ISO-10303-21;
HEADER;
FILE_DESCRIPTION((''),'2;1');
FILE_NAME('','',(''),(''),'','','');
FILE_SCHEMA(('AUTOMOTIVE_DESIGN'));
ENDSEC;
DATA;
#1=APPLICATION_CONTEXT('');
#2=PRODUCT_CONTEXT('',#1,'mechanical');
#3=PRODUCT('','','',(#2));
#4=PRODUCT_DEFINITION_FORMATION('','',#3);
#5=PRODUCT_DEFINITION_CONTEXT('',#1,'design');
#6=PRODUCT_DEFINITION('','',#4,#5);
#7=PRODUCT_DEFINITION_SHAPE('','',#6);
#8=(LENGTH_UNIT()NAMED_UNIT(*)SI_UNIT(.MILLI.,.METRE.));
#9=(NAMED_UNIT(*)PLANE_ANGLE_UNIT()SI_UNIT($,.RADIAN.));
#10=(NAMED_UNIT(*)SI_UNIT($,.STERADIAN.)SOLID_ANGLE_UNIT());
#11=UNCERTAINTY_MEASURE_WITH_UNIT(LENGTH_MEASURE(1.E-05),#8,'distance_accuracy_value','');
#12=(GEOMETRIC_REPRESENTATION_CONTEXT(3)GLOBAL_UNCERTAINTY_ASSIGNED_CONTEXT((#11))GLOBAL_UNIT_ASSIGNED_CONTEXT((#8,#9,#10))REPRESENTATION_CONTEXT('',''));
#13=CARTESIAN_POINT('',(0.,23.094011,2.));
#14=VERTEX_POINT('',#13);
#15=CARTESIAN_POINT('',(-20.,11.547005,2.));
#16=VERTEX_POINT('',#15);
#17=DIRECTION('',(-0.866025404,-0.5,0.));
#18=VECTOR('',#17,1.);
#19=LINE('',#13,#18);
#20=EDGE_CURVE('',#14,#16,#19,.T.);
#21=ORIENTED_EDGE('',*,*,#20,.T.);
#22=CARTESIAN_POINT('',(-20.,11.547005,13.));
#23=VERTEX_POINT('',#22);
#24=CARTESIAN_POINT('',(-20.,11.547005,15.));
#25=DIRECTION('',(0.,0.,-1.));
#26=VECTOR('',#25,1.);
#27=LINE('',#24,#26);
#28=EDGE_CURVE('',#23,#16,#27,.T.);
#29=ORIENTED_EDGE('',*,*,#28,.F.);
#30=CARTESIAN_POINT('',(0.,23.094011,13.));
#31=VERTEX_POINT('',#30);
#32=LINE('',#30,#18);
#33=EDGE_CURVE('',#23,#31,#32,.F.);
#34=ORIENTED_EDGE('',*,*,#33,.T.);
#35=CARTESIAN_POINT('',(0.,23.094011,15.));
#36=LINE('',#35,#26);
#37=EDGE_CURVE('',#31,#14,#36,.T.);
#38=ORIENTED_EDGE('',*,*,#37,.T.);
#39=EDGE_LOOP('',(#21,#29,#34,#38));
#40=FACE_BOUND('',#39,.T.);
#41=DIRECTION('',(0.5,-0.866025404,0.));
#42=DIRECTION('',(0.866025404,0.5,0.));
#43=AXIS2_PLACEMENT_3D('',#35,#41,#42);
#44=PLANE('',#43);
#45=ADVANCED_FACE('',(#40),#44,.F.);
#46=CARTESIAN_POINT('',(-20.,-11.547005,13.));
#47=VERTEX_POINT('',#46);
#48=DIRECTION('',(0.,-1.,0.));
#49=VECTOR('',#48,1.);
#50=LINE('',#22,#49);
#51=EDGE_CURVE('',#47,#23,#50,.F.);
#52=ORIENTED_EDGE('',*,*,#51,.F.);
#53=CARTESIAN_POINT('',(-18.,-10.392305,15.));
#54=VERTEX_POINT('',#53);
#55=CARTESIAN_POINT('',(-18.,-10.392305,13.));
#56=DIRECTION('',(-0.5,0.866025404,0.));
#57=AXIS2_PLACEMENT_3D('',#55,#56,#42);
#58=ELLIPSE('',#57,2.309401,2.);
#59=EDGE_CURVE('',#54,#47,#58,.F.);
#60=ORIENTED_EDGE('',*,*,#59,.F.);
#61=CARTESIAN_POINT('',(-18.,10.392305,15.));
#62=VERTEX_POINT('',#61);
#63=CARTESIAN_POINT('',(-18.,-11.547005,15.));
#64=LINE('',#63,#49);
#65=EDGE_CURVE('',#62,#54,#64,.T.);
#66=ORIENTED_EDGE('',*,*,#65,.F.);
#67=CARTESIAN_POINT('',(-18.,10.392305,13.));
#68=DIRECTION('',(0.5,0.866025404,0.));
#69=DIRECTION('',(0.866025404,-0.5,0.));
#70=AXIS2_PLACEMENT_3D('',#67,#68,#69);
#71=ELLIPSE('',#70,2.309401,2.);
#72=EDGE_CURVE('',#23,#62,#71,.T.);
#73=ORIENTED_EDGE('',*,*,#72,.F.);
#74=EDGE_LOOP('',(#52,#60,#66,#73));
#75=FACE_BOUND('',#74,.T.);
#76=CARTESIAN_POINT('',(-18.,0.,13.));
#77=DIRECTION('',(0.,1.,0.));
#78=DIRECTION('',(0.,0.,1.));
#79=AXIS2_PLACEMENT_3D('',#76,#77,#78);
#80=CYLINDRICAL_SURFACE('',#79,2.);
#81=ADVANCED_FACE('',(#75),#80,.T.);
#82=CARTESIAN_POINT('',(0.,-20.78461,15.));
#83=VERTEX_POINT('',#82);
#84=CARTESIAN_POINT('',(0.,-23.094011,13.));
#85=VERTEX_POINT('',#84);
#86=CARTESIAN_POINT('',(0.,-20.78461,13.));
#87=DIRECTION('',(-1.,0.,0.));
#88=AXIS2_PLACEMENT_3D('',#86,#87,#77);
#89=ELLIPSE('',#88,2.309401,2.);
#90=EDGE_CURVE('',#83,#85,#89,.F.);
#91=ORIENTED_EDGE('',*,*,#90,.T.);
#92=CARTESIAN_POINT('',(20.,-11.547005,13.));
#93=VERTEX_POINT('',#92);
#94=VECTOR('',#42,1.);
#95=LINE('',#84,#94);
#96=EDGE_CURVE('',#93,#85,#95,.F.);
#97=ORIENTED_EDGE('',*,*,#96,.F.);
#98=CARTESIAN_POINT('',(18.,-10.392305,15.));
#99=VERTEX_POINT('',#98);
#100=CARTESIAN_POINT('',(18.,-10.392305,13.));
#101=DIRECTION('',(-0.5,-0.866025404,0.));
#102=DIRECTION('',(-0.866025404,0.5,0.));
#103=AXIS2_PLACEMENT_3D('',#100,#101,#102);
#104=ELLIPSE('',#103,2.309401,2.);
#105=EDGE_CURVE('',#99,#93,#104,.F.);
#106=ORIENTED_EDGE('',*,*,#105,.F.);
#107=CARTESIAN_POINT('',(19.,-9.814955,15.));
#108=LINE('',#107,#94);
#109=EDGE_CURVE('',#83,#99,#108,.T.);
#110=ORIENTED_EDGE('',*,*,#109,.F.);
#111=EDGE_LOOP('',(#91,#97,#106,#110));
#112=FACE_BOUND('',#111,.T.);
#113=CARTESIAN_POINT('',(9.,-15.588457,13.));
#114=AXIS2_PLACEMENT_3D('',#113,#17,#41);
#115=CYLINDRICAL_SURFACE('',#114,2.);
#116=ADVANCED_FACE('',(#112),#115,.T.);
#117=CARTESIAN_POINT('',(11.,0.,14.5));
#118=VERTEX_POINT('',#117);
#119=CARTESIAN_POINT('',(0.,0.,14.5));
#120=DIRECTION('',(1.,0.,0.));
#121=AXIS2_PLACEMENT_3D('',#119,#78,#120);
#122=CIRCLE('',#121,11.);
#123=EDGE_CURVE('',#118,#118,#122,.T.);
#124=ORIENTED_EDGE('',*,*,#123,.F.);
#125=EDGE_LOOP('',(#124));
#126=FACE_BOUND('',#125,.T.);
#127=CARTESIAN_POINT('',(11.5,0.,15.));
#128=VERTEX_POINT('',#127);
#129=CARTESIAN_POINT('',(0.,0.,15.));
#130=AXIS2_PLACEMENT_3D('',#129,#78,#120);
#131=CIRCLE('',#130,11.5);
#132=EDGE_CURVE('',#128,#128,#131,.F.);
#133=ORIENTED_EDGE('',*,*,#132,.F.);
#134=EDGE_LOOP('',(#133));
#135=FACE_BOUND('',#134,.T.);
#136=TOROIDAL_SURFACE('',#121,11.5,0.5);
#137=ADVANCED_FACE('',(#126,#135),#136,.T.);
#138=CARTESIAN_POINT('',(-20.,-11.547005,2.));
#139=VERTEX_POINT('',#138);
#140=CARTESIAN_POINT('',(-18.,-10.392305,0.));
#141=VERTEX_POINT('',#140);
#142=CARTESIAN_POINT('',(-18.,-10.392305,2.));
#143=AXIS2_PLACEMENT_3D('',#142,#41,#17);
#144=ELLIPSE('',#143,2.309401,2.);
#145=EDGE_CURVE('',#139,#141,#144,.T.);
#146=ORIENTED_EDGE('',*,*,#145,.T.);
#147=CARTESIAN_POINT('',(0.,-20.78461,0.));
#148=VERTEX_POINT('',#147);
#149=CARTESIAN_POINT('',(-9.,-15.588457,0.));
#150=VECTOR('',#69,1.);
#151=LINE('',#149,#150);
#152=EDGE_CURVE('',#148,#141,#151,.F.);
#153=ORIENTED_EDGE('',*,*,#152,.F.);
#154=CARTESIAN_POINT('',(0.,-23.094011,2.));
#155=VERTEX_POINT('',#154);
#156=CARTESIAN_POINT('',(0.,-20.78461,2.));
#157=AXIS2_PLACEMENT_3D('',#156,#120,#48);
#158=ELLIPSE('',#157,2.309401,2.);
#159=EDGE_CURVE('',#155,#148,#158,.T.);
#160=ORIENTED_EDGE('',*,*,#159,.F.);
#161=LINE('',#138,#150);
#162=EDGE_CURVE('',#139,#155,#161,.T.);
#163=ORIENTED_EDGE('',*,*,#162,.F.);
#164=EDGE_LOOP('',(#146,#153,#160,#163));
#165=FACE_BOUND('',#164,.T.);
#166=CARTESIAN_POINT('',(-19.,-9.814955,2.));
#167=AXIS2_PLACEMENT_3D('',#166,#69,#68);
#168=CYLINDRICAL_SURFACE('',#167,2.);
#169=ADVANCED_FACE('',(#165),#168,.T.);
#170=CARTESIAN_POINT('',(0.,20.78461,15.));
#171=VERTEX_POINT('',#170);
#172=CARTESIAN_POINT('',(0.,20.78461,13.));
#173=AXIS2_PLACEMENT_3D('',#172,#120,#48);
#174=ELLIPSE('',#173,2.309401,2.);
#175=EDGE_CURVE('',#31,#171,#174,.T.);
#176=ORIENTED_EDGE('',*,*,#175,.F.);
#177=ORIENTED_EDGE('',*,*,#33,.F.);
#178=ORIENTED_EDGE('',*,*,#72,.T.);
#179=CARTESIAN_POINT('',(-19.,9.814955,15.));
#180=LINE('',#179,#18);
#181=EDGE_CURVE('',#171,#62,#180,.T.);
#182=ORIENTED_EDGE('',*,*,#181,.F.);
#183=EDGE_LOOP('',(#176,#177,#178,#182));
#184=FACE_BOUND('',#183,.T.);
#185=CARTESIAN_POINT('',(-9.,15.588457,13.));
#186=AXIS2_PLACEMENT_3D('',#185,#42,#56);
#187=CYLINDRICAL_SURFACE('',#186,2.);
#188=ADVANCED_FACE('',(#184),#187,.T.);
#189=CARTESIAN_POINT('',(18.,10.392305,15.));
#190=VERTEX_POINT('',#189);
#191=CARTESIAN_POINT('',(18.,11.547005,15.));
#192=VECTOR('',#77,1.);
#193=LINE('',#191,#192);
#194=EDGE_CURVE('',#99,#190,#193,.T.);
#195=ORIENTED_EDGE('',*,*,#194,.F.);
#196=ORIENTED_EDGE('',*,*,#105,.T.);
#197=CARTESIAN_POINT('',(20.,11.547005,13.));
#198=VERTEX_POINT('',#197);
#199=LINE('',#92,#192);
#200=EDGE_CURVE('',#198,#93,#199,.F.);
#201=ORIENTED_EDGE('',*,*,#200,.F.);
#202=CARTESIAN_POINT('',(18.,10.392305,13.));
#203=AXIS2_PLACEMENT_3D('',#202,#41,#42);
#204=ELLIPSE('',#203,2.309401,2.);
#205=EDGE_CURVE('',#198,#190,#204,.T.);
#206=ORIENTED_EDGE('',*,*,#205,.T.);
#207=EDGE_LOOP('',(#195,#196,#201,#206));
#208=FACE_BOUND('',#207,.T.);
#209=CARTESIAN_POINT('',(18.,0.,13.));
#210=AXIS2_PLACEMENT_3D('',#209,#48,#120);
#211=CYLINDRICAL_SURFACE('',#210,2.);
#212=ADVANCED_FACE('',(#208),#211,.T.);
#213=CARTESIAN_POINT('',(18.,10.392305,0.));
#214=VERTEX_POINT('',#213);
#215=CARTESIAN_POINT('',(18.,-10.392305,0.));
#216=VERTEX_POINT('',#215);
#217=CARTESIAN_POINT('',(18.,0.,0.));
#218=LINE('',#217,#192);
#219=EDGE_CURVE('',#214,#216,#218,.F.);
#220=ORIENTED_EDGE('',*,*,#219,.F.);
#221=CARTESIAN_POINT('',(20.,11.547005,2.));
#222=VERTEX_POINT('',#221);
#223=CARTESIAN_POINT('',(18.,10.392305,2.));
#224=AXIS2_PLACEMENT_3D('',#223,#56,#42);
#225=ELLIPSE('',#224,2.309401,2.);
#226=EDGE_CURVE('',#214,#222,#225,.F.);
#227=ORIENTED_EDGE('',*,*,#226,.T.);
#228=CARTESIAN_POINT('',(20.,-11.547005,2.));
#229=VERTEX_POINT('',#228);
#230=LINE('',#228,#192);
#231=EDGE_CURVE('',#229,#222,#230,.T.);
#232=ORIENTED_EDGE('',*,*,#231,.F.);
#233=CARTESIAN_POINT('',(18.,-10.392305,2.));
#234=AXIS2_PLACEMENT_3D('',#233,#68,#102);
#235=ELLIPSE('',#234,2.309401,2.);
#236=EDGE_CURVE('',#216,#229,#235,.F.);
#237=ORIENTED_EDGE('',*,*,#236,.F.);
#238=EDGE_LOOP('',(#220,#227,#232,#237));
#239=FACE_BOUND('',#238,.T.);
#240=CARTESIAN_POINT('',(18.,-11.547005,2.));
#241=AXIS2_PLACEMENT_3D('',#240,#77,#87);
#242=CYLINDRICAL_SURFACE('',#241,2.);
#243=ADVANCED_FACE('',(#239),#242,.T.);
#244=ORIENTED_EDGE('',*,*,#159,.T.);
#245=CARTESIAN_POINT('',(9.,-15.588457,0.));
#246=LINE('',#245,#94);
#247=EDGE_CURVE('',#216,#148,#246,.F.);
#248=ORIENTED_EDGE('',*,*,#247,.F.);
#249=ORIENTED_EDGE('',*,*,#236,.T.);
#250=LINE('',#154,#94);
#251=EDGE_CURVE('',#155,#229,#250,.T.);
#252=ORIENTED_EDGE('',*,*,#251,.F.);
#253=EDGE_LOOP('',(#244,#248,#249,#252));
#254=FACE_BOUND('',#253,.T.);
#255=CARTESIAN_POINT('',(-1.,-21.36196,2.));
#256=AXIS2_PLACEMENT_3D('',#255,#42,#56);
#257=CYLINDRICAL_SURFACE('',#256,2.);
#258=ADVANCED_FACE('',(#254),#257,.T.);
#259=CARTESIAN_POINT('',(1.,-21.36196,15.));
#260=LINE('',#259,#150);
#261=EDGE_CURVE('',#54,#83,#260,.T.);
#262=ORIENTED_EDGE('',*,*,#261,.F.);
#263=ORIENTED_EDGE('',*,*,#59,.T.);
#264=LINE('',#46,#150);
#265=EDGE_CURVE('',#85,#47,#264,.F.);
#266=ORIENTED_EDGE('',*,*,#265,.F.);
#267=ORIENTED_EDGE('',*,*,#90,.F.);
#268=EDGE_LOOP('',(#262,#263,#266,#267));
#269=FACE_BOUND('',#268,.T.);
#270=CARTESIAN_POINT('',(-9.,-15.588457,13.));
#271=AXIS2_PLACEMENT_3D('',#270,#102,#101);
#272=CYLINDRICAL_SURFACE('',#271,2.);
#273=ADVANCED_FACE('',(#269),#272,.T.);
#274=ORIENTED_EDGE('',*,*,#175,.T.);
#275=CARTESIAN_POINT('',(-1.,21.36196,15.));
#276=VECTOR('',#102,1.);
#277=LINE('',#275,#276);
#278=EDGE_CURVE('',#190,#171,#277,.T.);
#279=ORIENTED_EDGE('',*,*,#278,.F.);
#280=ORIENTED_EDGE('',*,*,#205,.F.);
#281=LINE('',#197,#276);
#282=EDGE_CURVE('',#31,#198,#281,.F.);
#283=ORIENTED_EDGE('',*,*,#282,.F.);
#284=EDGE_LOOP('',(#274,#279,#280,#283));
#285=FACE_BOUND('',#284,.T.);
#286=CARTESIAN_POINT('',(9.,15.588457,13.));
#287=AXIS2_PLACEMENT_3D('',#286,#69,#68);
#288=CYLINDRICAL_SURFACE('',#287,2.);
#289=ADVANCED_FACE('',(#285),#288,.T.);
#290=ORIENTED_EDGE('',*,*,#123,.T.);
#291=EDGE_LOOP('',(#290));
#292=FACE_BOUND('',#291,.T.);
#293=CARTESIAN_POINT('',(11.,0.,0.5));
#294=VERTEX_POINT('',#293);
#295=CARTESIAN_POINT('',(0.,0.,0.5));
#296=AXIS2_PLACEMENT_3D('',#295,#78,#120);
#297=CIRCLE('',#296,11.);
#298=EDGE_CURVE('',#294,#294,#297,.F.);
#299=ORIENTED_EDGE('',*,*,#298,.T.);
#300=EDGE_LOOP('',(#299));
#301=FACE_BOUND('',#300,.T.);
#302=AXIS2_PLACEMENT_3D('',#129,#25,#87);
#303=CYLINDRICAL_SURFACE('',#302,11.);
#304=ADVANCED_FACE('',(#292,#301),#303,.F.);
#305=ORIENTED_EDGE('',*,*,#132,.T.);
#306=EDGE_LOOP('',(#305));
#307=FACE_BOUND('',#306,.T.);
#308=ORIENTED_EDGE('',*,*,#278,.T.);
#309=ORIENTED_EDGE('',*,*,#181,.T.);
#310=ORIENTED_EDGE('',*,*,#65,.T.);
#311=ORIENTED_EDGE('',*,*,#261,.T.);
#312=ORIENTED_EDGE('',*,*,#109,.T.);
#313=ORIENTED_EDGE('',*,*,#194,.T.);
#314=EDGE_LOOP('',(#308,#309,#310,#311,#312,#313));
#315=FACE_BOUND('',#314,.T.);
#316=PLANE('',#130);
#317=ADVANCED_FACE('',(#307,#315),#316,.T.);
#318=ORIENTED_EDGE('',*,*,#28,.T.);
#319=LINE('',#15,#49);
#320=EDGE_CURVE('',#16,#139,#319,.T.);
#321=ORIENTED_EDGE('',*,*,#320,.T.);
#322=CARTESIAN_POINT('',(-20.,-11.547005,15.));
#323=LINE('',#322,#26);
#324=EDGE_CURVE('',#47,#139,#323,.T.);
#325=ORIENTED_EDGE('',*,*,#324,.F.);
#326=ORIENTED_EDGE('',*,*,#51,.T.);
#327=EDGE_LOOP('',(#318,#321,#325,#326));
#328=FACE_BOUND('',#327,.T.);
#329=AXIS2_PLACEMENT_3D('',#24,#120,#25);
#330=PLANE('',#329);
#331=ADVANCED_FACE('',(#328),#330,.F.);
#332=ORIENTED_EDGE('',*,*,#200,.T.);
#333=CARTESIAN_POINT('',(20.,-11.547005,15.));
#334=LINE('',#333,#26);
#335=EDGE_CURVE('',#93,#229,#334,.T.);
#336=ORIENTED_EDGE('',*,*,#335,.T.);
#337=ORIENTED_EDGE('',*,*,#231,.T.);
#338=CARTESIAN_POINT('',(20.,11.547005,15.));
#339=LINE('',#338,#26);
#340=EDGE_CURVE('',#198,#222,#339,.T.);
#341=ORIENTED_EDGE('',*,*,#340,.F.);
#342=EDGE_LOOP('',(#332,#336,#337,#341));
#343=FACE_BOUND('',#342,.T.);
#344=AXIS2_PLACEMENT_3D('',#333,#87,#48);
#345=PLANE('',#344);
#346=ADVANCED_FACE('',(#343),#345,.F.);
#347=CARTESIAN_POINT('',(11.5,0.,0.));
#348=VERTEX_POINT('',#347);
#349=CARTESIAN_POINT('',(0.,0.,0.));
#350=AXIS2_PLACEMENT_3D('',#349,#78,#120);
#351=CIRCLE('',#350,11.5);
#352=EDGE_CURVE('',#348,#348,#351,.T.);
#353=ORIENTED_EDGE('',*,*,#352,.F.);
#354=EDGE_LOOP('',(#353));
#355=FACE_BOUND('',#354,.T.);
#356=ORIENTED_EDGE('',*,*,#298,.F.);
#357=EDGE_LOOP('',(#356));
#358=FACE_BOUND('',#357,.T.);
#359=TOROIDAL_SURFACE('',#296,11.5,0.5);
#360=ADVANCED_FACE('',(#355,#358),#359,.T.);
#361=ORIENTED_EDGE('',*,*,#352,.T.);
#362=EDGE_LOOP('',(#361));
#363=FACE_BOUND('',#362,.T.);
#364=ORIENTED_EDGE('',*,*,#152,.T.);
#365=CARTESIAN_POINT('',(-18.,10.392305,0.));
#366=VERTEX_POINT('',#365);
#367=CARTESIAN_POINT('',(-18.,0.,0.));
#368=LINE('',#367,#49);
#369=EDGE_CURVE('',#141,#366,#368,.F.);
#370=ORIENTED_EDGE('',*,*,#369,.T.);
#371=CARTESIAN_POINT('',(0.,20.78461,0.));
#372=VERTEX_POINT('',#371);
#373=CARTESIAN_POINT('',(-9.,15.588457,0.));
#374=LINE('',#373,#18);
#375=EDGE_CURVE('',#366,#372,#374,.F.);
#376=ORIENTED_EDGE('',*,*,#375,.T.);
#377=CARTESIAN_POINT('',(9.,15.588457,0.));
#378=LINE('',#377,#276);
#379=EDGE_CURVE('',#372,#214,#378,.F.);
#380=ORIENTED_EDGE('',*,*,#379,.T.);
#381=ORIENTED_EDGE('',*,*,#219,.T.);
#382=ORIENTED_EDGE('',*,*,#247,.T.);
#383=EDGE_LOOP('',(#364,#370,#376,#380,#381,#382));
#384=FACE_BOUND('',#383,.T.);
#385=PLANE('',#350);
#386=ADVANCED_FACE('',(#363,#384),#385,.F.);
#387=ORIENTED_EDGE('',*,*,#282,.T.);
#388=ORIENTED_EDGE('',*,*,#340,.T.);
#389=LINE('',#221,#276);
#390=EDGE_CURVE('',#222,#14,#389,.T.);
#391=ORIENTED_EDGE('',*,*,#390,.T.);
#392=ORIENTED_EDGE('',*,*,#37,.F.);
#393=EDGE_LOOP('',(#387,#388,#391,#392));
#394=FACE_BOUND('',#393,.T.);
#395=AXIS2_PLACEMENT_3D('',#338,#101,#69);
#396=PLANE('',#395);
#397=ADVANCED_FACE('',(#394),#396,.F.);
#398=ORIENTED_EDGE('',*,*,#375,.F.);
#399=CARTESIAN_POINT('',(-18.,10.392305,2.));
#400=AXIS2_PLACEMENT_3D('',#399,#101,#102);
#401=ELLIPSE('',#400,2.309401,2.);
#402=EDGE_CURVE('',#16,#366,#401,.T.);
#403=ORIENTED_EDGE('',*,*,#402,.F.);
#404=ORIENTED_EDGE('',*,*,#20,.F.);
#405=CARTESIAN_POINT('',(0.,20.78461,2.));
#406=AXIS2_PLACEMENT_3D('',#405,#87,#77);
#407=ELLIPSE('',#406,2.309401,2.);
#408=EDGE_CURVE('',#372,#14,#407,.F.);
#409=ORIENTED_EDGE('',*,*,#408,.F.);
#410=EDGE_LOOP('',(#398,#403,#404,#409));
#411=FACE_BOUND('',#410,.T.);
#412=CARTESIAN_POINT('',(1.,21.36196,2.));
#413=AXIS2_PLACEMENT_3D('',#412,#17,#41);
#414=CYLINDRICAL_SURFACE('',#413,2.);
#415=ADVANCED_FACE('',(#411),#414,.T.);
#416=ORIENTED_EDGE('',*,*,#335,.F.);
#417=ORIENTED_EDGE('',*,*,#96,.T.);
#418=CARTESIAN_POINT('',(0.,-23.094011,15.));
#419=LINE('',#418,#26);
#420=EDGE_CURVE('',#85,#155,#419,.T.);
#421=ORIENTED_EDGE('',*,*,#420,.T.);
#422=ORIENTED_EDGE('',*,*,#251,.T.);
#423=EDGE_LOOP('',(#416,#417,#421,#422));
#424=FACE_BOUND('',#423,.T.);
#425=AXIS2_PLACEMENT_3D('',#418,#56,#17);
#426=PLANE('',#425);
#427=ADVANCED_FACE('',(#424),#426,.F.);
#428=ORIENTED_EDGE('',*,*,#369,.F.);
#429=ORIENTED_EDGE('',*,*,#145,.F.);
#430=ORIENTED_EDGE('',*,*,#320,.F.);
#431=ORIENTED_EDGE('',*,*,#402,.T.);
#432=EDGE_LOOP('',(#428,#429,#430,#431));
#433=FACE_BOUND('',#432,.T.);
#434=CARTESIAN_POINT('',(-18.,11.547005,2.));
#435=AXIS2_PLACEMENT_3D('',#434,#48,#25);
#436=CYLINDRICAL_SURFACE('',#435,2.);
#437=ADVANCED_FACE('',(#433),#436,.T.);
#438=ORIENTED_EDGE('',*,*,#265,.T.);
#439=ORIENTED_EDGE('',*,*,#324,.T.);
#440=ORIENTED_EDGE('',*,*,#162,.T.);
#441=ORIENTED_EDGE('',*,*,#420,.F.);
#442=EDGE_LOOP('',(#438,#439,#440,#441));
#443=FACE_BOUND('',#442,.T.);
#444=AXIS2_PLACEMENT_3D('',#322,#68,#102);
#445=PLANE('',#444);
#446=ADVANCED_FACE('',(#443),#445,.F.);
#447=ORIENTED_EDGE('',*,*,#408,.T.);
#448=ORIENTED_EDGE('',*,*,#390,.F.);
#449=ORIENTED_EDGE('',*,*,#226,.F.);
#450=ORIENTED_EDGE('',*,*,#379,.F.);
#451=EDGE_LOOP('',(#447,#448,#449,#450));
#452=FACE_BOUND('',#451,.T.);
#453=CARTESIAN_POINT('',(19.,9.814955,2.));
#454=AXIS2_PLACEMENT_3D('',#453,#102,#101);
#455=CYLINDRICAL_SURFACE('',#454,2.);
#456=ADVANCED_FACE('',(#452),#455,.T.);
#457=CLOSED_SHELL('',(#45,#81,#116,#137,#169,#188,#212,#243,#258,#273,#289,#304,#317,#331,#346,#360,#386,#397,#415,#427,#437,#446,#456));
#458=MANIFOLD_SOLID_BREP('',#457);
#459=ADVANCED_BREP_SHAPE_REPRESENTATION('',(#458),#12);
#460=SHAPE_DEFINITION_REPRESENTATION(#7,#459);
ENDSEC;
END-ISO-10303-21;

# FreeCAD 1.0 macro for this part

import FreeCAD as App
import Part
import Sketcher
Q = App.Units.Quantity


def edges_at(feature, points):
    """Names of the edges that pass closest to the given points."""
    edges = feature.Shape.Edges
    near = lambda p: min(range(len(edges)), key=lambda i: edges[i].distToShape(Part.Vertex(*p))[0])
    return sorted({f"Edge{near(p) + 1}" for p in points})

doc = App.newDocument("Part")
body = doc.addObject("PartDesign::Body", "Body")

# Sketch on XY plane
sketch1 = body.newObject("Sketcher::SketchObject", "Sketch")
sketch1.AttachmentSupport = (doc.getObject("XY_Plane"), [""])
sketch1.MapMode = "FlatFace"
sketch1.addGeometry(Part.LineSegment(App.Vector(0, -23, 0), App.Vector(20, -12, 0)), False)
sketch1.addGeometry(Part.LineSegment(App.Vector(20, -12, 0), App.Vector(20, 12, 0)), False)
sketch1.addGeometry(Part.LineSegment(App.Vector(20, 12, 0), App.Vector(0, 23, 0)), False)
sketch1.addGeometry(Part.LineSegment(App.Vector(0, 23, 0), App.Vector(-20, 12, 0)), False)
sketch1.addGeometry(Part.LineSegment(App.Vector(-20, 12, 0), App.Vector(-20, -12, 0)), False)
sketch1.addGeometry(Part.LineSegment(App.Vector(-20, -12, 0), App.Vector(0, -23, 0)), False)
sketch1.addGeometry(Part.Circle(App.Vector(0, 0, 0), App.Vector(0, 0, 1), 11), False)
sketch1.addConstraint(Sketcher.Constraint("Coincident", 0, 2, 1, 1))
sketch1.addConstraint(Sketcher.Constraint("Coincident", 1, 2, 2, 1))
sketch1.addConstraint(Sketcher.Constraint("Coincident", 2, 2, 3, 1))
sketch1.addConstraint(Sketcher.Constraint("Coincident", 3, 2, 4, 1))
sketch1.addConstraint(Sketcher.Constraint("Coincident", 4, 2, 5, 1))
sketch1.addConstraint(Sketcher.Constraint("Coincident", 5, 2, 0, 1))
sketch1.addConstraint(Sketcher.Constraint("Vertical", 1))
sketch1.addConstraint(Sketcher.Constraint("Vertical", 4))
sketch1.addConstraint(Sketcher.Constraint("Coincident", 6, 3, -1, 1))
sketch1.addConstraint(Sketcher.Constraint("Symmetric", 0, 2, 3, 2, -1, 1))
sketch1.addConstraint(Sketcher.Constraint("Symmetric", 2, 2, 5, 2, -1, 1))
sketch1.addConstraint(Sketcher.Constraint("PointOnObject", 2, 2, -2))
sketch1.addConstraint(Sketcher.Constraint("Parallel", 2, 5))
sketch1.addConstraint(Sketcher.Constraint("Horizontal", 1, 2, 3, 2))
sketch1.addConstraint(Sketcher.Constraint("Diameter", 6, 22.0))
sketch1.addConstraint(Sketcher.Constraint("Angle", 0, Q("30 deg")))
sketch1.addConstraint(Sketcher.Constraint("DistanceX", -1, 1, 0, 2, 20.0))
sketch1.addConstraint(Sketcher.Constraint("DistanceY", 1, 1, 1, 2, 23.094011))
pad1 = body.newObject("PartDesign::Pad", "Pad")
pad1.Profile = sketch1
pad1.Length = 15
doc.recompute()

fillet = body.newObject("PartDesign::Fillet", "Fillet")
fillet.Base = (pad1, edges_at(pad1, [
    (20, 0, 15),
    (10, 17.321, 15),
    (-10, 17.321, 15),
    (-20, 0, 15),
    (-10, -17.321, 15),
    (-20, 0, 0),
    (-10, 17.321, 0),
    (10, 17.321, 0),
    (10, -17.321, 15),
    (20, 0, 0),
    (10, -17.321, 0),
    (-10, -17.321, 0),
]))
fillet.Radius = 2
doc.recompute()

fillet2 = body.newObject("PartDesign::Fillet", "Fillet001")
fillet2.Base = (fillet, edges_at(fillet, [(-11, 0, 0), (-11, 0, 15)]))
fillet2.Radius = 0.5

doc.recompute()
